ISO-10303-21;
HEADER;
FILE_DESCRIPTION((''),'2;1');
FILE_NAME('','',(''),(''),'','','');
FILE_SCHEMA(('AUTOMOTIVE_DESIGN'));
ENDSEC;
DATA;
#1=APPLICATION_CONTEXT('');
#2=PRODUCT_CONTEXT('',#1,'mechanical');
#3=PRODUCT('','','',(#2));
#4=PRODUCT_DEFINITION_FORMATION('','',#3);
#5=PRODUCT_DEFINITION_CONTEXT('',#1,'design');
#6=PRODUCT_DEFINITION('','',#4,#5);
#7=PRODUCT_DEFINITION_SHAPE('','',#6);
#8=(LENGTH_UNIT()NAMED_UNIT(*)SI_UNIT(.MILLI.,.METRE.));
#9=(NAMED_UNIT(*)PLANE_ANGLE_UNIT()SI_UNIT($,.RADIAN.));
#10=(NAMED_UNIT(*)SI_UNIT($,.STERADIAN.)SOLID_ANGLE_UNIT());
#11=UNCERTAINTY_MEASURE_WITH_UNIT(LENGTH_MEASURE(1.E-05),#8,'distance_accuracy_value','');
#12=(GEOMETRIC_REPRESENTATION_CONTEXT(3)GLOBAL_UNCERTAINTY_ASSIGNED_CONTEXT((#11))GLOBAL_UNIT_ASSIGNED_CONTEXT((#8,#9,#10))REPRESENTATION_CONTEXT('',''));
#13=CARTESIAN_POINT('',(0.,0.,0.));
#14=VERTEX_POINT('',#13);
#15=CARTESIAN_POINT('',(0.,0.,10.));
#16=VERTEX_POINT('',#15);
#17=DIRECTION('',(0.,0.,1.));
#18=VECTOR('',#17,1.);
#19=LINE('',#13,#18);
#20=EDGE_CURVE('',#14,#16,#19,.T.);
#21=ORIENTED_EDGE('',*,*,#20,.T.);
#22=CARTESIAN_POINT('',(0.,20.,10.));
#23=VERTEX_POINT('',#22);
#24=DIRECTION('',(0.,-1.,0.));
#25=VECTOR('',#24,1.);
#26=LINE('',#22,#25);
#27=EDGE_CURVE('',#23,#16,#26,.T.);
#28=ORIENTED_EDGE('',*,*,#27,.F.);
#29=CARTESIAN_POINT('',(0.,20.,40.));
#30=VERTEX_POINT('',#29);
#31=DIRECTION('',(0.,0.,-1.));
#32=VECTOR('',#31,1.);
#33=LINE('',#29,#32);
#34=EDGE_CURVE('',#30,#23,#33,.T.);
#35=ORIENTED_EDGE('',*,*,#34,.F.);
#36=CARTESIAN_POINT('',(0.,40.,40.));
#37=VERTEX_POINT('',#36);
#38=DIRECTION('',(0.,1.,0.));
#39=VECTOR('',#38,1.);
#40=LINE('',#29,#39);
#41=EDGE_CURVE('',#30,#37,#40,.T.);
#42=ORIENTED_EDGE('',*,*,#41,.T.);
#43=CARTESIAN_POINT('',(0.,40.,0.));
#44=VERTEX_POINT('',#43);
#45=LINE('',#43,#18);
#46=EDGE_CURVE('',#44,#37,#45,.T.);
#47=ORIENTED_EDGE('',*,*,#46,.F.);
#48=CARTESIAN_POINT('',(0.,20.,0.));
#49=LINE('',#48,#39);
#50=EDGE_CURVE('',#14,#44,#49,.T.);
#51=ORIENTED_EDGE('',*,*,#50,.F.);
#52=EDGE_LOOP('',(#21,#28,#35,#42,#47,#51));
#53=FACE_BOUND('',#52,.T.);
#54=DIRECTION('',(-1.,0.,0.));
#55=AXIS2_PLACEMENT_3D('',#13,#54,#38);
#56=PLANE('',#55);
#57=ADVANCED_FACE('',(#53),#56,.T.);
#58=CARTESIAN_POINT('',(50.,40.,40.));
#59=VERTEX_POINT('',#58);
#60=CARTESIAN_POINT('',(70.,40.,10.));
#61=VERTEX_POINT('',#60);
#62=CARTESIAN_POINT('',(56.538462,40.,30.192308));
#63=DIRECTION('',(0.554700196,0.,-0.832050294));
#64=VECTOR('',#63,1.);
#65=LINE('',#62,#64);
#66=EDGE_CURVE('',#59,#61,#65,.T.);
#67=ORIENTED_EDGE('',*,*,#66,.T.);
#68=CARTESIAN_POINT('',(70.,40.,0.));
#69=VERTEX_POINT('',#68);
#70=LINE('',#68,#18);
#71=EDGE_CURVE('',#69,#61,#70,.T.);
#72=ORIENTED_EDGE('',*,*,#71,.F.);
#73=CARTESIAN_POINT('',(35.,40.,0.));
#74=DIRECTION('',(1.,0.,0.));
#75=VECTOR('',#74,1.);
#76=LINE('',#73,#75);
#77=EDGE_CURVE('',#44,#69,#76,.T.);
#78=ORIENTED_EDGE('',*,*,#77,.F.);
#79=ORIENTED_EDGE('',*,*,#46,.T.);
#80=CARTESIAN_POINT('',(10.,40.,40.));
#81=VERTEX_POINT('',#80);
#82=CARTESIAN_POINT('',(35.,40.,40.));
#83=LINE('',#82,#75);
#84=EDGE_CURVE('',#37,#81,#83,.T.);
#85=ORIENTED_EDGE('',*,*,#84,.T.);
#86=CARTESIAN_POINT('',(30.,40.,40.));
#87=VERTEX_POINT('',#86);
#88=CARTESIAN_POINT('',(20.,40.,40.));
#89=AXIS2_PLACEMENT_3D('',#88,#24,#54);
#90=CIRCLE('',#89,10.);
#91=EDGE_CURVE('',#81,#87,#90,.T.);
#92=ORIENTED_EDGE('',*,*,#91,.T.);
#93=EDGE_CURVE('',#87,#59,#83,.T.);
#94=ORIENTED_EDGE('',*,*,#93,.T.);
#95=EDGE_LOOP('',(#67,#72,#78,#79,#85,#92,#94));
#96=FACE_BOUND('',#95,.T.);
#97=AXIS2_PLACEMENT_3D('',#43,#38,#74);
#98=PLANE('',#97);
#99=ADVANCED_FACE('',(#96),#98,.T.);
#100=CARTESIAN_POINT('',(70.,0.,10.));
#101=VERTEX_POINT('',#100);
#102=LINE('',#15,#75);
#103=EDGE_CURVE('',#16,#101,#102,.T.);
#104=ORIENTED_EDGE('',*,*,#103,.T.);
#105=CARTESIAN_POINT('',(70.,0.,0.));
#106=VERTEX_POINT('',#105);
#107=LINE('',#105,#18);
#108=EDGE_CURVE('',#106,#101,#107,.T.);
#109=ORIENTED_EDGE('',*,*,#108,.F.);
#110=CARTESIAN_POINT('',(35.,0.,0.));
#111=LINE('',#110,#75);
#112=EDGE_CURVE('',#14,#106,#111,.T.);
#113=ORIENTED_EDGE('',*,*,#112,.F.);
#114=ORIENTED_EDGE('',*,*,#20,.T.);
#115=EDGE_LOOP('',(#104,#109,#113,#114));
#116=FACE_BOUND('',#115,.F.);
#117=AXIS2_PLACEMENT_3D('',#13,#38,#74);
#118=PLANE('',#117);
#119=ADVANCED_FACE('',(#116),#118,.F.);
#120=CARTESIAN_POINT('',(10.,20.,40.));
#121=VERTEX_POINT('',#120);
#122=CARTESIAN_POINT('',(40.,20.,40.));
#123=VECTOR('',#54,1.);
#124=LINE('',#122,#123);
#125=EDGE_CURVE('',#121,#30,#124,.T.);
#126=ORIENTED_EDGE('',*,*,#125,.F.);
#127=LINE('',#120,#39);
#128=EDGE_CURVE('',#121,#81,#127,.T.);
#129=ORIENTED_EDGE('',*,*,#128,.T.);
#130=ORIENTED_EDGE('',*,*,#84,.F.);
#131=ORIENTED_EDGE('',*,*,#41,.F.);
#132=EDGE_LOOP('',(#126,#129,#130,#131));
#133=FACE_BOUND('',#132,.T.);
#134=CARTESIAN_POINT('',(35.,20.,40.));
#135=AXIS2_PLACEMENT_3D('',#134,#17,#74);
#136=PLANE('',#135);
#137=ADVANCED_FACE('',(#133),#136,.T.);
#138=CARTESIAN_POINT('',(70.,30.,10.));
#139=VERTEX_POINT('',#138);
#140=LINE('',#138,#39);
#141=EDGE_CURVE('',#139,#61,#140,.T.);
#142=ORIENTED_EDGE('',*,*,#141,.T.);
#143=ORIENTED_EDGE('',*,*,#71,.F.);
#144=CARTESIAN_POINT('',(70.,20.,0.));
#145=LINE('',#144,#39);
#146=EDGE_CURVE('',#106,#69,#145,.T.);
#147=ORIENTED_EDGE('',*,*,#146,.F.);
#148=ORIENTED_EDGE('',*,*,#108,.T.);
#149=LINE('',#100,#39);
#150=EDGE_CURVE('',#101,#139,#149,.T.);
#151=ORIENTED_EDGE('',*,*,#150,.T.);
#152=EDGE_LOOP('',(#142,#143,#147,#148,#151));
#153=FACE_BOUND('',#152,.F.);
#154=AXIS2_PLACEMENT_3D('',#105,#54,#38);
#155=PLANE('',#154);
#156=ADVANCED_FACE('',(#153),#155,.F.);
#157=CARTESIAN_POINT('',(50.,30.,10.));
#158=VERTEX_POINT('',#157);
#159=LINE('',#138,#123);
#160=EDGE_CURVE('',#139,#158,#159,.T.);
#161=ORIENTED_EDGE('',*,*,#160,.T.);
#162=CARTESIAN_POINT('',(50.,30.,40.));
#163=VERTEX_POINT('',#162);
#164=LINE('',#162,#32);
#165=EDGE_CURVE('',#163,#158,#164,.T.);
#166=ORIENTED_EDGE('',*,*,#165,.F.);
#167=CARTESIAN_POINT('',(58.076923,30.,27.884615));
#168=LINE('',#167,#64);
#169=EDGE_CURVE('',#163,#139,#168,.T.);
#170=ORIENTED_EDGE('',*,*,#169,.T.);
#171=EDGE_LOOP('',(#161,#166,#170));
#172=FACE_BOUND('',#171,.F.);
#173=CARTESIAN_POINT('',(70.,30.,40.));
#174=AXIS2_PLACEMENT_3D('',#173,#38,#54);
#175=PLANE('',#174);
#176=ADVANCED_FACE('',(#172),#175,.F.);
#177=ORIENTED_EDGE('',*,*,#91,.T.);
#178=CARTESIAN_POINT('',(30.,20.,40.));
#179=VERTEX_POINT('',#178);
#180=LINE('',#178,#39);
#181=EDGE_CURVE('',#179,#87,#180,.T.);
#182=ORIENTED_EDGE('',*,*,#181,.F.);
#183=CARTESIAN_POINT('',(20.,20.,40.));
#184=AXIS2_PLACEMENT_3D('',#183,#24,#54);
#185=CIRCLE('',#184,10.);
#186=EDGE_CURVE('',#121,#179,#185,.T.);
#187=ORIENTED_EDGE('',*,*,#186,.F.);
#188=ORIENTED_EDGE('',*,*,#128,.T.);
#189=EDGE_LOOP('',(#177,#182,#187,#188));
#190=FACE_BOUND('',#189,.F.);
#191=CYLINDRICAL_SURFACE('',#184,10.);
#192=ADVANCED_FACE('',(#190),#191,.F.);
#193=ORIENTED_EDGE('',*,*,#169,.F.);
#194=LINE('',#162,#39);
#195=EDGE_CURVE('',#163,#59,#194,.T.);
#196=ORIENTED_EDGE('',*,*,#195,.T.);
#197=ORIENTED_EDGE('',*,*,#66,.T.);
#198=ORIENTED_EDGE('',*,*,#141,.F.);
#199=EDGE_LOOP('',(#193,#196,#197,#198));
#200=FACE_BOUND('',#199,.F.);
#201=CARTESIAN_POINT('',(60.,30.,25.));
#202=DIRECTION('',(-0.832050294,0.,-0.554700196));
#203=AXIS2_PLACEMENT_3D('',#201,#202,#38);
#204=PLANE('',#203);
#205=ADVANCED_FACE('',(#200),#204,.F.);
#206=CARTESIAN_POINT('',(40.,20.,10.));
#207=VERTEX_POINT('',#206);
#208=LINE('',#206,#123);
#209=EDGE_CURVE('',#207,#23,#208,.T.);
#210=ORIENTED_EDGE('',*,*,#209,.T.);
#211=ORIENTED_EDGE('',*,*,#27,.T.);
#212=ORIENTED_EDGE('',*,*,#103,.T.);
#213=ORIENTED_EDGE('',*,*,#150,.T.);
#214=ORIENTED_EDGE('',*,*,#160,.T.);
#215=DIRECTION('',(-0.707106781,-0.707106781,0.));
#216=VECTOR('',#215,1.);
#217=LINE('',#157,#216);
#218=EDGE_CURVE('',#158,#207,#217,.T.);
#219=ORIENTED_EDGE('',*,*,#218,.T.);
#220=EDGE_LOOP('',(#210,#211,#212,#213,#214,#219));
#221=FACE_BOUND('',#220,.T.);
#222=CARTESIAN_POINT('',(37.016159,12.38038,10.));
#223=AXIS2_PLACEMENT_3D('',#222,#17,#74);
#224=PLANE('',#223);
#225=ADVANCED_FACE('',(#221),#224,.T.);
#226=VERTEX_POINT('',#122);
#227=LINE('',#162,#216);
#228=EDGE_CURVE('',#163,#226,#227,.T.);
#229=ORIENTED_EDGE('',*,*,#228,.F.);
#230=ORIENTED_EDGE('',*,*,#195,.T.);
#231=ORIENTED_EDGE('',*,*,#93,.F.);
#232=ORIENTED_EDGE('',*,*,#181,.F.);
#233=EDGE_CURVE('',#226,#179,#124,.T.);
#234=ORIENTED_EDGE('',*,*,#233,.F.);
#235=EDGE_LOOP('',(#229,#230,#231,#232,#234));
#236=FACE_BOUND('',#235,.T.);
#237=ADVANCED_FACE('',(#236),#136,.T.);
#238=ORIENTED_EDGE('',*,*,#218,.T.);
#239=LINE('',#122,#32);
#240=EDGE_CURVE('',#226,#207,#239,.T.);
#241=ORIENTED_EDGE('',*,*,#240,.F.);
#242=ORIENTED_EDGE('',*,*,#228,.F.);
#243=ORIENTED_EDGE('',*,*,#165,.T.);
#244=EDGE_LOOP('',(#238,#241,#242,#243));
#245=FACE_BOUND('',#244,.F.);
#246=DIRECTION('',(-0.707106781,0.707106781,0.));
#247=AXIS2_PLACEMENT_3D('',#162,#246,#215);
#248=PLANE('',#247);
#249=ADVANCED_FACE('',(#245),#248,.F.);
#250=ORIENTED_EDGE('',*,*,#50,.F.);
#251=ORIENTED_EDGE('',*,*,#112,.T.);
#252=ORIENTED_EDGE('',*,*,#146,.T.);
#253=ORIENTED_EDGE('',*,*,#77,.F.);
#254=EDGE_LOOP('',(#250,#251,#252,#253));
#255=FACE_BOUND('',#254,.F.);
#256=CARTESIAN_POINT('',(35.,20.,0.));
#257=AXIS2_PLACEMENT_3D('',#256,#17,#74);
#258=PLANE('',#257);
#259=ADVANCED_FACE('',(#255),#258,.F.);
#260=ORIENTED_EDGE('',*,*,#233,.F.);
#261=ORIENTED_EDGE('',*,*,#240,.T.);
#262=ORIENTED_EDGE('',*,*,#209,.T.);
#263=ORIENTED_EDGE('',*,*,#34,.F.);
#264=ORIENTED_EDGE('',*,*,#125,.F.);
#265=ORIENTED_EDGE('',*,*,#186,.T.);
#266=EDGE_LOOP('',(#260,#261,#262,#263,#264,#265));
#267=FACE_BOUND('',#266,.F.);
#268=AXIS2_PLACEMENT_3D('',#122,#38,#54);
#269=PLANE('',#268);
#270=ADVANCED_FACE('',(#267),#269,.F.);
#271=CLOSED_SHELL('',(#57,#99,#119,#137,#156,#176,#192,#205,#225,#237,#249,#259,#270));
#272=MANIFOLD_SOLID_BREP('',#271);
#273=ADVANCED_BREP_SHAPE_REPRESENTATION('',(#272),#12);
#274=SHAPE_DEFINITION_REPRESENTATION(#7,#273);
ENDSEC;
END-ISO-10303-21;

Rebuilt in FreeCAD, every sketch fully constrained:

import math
import FreeCAD as App
import Part
import Sketcher

V = App.Vector


def edges_at(feature, points):
    """Names of the edges that pass closest to the given points."""
    edges = feature.Shape.Edges
    near = lambda p: min(range(len(edges)), key=lambda i: edges[i].distToShape(Part.Vertex(*p))[0])
    return sorted({f"Edge{near(p) + 1}" for p in points})

doc = App.newDocument("Part")
params = doc.addObject("Spreadsheet::Sheet", "Params")
for row, (alias, value) in enumerate([
    ("sketch1_width", "70 mm"),
    ("sketch1_height", "40 mm"),
    ("pad1_length", "40 mm"),
    ("sketch2_width", "40 mm"),
    ("sketch2_width2", "70 mm"),
    ("sketch2_width3", "20 mm"),
    ("sketch2_height", "30 mm"),
    ("pocket1_length", "30 mm"),
    ("chamfer_size", "20 mm"),
    ("chamfer_size2", "30 mm"),
    ("sketch3_radius", "10 mm"),
], start=1):
    params.set(f"A{row}", alias)
    params.set(f"B{row}", "=" + value)
    params.setAlias(f"B{row}", alias)

body = doc.addObject("PartDesign::Body", "Body")

# Sketch on XY plane
sketch1 = body.newObject("Sketcher::SketchObject", "Sketch")
sketch1.AttachmentSupport = (doc.getObject("XY_Plane"), [""])
sketch1.MapMode = "FlatFace"
sketch1.addGeometry([
    Part.LineSegment(V(0, 40, 0), V(0, 0, 0)),
    Part.LineSegment(V(0, 0, 0), V(70, 0, 0)),
    Part.LineSegment(V(70, 0, 0), V(70, 40, 0)),
    Part.LineSegment(V(70, 40, 0), V(0, 40, 0)),
], False)
sketch1.addConstraint([
    Sketcher.Constraint("Coincident", 0, 2, 1, 1),
    Sketcher.Constraint("Coincident", 1, 2, 2, 1),
    Sketcher.Constraint("Coincident", 2, 2, 3, 1),
    Sketcher.Constraint("Coincident", 3, 2, 0, 1),
    Sketcher.Constraint("Vertical", 0),
    Sketcher.Constraint("Horizontal", 1),
    Sketcher.Constraint("Vertical", 2),
    Sketcher.Constraint("Horizontal", 3),
    Sketcher.Constraint("Coincident", 0, 2, -1, 1),
    Sketcher.Constraint("DistanceX", 1, 1, 1, 2, 70.0),
    Sketcher.Constraint("DistanceY", 0, 2, 0, 1, 40.0),
])
sketch1.setExpression("Constraints[9]", "Params.sketch1_width")
sketch1.setExpression("Constraints[10]", "Params.sketch1_height")
pad1 = body.newObject("PartDesign::Pad", "Pad")
pad1.Profile = sketch1
pad1.setExpression("Length", "Params.pad1_length")

# Sketch on XY plane
sketch2 = body.newObject("Sketcher::SketchObject", "Sketch001")
sketch2.AttachmentSupport = (doc.getObject("XY_Plane"), [""])
sketch2.MapMode = "FlatFace"
sketch2.AttachmentOffset = App.Placement(V(0, 0, 40), App.Rotation())
sketch2.addGeometry([
    Part.LineSegment(V(40, 20, 0), V(0, 20, 0)),  # 0
    Part.LineSegment(V(0, 20, 0), V(0, 0, 0)),  # 1
    Part.LineSegment(V(0, 0, 0), V(70, 0, 0)),  # 2
    Part.LineSegment(V(70, 0, 0), V(70, 30, 0)),  # 3
    Part.LineSegment(V(70, 30, 0), V(50, 30, 0)),  # 4
    Part.LineSegment(V(50, 30, 0), V(40, 20, 0)),  # 5
], False)
sketch2.addConstraint([
    Sketcher.Constraint("Coincident", 0, 2, 1, 1),
    Sketcher.Constraint("Coincident", 1, 2, 2, 1),
    Sketcher.Constraint("Coincident", 2, 2, 3, 1),
    Sketcher.Constraint("Coincident", 3, 2, 4, 1),
    Sketcher.Constraint("Coincident", 4, 2, 5, 1),
    Sketcher.Constraint("Coincident", 5, 2, 0, 1),
    Sketcher.Constraint("Horizontal", 0),
    Sketcher.Constraint("Vertical", 1),
    Sketcher.Constraint("Horizontal", 2),
    Sketcher.Constraint("Vertical", 3),
    Sketcher.Constraint("Horizontal", 4),
    Sketcher.Constraint("Coincident", 1, 2, -1, 1),
    Sketcher.Constraint("Equal", 4, 1),
    Sketcher.Constraint("DistanceX", 0, 2, 0, 1, 40.0),
    Sketcher.Constraint("DistanceX", 2, 1, 2, 2, 70.0),
    Sketcher.Constraint("DistanceX", 4, 2, 4, 1, 20.0),
    Sketcher.Constraint("DistanceY", 3, 1, 3, 2, 30.0),
])
sketch2.setExpression("Constraints[13]", "Params.sketch2_width")
sketch2.setExpression("Constraints[14]", "Params.sketch2_width2")
sketch2.setExpression("Constraints[15]", "Params.sketch2_width3")
sketch2.setExpression("Constraints[16]", "Params.sketch2_height")
pocket1 = body.newObject("PartDesign::Pocket", "Pocket")
pocket1.Profile = sketch2
pocket1.setExpression("Length", "Params.pocket1_length")
doc.recompute()

chamfer = body.newObject("PartDesign::Chamfer", "Chamfer")
chamfer.Base = (pocket1, edges_at(pocket1, [(70, 35, 40)]))
chamfer.ChamferType = "Two distances"
chamfer.setExpression("Size", "Params.chamfer_size")
chamfer.setExpression("Size2", "Params.chamfer_size2")

# Sketch on XZ plane
sketch3 = body.newObject("Sketcher::SketchObject", "Sketch002")
sketch3.AttachmentSupport = (doc.getObject("XZ_Plane"), [""])
sketch3.MapMode = "FlatFace"
sketch3.AttachmentOffset = App.Placement(V(0, 0, -20), App.Rotation())
sketch3.addGeometry([
    Part.LineSegment(V(30, 40, 0), V(10, 40, 0)),
    Part.ArcOfCircle(Part.Circle(V(20, 40, 0), V(0, 0, 1), 10), math.radians(180), math.radians(360)),
], False)
sketch3.addConstraint([
    Sketcher.Constraint("Coincident", 0, 1, 1, 2),
    Sketcher.Constraint("Coincident", 1, 1, 0, 2),
    Sketcher.Constraint("Horizontal", 0),
    Sketcher.Constraint("Horizontal", 1, 3, 0, 1),
    Sketcher.Constraint("Radius", 1, 10.0),
    Sketcher.Constraint("DistanceX", -1, 1, 1, 3, 20.0),
    Sketcher.Constraint("DistanceY", -1, 1, 1, 3, 40.0),
])
sketch3.setExpression("Constraints[4]", "Params.sketch3_radius")
pocket2 = body.newObject("PartDesign::Pocket", "Pocket001")
pocket2.Profile = sketch3
pocket2.Type = "ThroughAll"

doc.recompute()
